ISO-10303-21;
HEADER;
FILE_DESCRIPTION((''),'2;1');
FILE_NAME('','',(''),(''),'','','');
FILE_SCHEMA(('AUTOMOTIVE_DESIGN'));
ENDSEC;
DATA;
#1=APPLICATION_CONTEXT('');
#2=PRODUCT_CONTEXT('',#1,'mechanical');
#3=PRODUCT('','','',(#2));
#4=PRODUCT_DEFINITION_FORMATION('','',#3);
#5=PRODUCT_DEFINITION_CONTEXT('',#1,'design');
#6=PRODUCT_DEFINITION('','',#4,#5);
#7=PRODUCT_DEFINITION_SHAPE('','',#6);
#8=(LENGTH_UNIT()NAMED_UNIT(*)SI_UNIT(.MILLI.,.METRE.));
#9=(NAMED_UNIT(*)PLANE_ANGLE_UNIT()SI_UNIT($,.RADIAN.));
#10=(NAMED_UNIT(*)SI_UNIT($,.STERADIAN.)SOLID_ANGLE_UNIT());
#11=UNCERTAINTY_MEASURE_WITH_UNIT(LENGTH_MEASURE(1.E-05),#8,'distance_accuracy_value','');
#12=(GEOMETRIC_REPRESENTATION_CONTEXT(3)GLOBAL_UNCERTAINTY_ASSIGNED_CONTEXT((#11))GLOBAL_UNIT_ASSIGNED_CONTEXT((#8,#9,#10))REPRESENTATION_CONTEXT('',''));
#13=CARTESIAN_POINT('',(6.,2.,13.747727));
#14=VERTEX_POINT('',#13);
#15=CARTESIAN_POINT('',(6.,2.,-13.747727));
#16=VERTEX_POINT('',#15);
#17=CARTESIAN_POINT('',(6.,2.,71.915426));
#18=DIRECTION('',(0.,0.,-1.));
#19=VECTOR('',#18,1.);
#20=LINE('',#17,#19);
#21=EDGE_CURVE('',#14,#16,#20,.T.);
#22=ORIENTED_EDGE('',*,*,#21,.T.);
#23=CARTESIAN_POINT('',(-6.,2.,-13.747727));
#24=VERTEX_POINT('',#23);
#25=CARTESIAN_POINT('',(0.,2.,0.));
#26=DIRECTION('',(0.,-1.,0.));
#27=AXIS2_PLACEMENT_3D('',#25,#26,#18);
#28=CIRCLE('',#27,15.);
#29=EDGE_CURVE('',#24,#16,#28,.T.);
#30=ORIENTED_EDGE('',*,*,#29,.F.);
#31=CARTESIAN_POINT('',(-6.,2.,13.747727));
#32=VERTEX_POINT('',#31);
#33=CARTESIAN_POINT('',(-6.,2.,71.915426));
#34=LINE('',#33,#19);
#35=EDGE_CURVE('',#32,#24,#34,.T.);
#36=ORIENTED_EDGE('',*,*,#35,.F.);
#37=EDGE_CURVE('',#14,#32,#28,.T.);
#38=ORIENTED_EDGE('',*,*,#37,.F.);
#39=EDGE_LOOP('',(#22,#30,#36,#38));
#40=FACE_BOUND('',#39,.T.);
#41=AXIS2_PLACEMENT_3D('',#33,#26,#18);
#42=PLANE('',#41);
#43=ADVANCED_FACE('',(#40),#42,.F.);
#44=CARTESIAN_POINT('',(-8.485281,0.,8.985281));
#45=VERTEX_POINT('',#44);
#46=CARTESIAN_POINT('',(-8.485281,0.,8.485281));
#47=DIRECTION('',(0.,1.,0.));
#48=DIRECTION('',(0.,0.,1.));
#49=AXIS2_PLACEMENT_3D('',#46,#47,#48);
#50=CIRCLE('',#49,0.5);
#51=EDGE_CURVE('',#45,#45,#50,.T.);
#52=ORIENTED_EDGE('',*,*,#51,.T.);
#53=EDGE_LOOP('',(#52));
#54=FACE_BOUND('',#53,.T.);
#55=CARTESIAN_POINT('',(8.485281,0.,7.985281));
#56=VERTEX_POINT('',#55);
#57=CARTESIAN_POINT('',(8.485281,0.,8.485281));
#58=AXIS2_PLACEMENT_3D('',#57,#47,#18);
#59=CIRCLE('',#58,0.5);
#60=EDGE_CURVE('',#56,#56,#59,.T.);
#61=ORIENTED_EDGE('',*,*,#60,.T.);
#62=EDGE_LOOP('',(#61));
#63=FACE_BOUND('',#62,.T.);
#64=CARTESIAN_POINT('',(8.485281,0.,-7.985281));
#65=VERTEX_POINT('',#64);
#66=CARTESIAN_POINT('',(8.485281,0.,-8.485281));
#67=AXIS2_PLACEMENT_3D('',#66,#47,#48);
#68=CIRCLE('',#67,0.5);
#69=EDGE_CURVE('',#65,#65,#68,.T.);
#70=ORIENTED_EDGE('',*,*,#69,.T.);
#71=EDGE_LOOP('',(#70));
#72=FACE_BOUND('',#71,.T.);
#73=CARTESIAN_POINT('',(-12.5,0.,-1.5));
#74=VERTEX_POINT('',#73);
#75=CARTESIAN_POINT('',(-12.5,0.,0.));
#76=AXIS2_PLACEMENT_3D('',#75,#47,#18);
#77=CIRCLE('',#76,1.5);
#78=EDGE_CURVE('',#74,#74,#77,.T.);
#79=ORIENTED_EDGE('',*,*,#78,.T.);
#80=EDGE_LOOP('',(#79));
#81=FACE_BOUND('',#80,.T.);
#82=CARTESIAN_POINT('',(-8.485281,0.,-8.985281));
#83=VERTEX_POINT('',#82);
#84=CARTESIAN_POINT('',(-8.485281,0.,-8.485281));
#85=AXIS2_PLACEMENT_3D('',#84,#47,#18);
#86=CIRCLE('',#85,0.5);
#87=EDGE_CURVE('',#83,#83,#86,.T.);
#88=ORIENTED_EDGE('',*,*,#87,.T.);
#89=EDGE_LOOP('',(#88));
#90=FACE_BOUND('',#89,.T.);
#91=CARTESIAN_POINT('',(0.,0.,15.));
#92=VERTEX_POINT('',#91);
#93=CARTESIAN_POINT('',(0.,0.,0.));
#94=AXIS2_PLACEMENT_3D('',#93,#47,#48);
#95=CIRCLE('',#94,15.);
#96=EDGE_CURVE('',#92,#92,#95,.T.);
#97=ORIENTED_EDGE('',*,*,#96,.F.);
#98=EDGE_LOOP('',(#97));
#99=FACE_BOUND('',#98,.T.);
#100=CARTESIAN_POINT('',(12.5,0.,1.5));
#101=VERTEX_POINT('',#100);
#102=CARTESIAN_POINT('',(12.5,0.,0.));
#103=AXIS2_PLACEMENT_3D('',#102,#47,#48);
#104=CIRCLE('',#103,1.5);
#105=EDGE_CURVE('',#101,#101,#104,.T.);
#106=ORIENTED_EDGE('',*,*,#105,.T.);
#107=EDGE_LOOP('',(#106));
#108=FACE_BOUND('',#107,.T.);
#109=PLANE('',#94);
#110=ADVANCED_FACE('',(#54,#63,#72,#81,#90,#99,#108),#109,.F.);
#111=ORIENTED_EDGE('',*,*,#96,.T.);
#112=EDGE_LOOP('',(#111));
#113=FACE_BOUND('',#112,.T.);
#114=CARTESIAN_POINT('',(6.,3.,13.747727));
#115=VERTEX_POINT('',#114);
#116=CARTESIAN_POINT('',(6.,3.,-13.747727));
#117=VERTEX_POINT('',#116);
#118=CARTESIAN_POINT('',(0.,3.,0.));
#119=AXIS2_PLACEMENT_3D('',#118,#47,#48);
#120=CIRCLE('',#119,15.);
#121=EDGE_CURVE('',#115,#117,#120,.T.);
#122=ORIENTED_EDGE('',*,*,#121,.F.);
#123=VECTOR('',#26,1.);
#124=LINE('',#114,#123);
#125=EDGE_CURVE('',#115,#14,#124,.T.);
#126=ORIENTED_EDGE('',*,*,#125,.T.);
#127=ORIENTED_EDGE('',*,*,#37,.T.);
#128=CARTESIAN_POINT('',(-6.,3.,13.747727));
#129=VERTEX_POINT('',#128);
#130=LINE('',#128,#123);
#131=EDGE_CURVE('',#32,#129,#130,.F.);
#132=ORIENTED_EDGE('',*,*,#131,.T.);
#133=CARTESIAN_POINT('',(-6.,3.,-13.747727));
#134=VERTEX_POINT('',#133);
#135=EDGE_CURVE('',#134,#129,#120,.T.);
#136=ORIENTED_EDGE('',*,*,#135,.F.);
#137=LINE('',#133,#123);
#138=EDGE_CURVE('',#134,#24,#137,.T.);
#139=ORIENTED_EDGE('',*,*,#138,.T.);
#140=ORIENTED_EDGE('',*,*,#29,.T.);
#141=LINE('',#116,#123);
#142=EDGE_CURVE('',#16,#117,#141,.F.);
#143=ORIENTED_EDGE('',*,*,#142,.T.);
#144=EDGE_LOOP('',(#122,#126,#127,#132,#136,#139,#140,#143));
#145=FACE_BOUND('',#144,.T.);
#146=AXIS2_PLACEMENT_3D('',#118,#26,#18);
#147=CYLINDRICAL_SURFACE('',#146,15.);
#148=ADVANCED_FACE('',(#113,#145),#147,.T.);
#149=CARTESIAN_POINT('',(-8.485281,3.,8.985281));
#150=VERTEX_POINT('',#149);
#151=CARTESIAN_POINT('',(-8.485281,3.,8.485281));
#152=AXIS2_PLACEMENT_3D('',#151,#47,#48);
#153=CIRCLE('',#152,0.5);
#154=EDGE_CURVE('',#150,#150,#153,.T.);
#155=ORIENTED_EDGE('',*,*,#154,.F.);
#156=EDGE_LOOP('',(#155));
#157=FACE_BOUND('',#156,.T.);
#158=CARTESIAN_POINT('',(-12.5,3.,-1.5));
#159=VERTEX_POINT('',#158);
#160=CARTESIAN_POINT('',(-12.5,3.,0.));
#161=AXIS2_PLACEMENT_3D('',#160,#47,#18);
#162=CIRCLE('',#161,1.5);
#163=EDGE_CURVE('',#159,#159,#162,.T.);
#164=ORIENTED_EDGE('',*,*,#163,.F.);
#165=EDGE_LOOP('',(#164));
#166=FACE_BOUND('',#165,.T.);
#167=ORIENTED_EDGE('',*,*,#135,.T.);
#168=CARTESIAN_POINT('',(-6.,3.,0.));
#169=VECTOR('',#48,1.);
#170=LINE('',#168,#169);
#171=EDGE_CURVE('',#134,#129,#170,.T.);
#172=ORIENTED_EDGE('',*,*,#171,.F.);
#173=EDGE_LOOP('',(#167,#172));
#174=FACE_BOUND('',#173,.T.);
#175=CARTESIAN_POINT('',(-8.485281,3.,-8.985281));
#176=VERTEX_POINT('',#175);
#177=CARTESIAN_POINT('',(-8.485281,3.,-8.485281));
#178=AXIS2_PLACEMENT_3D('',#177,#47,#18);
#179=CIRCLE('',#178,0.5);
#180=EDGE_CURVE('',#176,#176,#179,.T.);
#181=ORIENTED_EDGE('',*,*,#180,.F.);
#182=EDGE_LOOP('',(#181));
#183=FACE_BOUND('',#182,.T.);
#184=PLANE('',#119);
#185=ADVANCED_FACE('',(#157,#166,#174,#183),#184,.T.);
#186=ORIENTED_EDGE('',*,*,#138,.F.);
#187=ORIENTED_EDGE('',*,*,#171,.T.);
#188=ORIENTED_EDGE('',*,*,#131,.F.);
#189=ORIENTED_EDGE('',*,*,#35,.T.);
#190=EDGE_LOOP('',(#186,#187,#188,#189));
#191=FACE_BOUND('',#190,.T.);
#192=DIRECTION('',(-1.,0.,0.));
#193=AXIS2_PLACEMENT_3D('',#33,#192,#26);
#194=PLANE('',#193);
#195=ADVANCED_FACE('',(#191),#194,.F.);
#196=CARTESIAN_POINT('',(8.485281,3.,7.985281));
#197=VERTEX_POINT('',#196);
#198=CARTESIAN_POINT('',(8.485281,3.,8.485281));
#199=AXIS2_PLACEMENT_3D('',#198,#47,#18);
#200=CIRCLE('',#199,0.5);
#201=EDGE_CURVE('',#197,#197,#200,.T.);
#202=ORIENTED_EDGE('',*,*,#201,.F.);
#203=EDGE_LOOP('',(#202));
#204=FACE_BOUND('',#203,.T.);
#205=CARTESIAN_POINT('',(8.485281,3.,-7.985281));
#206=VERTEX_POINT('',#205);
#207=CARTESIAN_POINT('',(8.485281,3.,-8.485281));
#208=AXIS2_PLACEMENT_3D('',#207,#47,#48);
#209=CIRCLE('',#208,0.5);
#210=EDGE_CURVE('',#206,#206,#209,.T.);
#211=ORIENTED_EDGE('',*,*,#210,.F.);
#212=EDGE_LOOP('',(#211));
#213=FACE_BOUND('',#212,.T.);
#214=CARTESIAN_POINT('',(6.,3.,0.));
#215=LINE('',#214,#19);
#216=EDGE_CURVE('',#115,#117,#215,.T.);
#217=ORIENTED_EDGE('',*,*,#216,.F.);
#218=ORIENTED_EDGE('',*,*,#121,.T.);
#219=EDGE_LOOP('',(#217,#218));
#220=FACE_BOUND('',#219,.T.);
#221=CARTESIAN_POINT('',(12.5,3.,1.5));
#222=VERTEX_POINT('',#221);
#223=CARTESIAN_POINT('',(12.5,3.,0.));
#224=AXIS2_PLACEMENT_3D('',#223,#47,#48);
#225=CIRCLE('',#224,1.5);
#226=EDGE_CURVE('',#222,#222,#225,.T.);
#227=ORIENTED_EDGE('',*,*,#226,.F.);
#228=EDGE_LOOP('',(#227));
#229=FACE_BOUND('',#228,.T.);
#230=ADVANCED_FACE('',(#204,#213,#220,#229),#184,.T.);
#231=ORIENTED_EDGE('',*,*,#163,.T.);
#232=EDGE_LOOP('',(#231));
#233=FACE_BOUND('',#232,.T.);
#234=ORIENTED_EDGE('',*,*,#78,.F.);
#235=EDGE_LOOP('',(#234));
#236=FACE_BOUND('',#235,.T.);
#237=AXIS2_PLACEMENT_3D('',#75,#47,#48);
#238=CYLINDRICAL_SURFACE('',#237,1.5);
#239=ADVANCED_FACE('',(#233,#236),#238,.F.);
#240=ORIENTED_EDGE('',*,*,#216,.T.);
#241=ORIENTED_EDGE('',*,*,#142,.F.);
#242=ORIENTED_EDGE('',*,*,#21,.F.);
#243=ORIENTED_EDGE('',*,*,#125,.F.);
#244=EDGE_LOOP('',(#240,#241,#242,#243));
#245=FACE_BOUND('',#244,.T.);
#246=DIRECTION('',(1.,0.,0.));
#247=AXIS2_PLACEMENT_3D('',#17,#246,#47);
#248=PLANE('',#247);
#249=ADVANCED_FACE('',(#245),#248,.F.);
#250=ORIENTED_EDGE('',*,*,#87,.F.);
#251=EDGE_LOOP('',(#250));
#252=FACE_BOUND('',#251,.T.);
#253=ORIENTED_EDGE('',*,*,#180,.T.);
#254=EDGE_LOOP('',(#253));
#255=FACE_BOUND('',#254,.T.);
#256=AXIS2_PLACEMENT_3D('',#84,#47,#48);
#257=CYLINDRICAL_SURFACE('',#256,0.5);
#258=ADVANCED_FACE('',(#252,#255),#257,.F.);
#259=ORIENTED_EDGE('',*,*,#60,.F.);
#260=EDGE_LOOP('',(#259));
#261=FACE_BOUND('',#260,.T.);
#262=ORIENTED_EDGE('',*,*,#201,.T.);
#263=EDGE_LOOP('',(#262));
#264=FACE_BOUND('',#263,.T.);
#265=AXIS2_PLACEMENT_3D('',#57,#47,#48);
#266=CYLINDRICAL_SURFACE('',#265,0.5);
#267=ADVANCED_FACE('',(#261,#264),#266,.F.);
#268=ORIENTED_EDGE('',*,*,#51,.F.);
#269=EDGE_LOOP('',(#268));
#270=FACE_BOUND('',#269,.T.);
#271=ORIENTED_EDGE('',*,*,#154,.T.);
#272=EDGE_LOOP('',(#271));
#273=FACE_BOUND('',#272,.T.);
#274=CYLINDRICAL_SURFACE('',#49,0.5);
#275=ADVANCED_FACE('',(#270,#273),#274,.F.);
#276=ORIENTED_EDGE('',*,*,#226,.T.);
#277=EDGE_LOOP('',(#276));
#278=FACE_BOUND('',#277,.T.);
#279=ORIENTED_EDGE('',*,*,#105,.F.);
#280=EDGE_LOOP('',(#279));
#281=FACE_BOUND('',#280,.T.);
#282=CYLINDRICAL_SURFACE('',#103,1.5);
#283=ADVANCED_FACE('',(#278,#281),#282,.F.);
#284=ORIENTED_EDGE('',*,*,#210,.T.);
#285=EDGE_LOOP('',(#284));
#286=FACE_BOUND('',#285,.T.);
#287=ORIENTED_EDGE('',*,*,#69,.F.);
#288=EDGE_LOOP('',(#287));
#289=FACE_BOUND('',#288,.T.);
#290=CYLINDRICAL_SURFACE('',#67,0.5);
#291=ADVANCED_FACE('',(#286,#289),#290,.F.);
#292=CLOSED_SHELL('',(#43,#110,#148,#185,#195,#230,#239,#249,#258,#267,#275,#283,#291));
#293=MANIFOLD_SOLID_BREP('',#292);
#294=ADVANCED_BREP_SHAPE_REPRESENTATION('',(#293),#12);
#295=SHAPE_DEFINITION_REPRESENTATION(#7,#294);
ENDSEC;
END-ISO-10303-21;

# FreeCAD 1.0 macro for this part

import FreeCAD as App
import Part
import Sketcher
Q = App.Units.Quantity

doc = App.newDocument("Part")
params = doc.addObject("Spreadsheet::Sheet", "Params")
for row, (alias, value) in enumerate([
    ("sketch1_diameter", "30 mm"),
    ("pad1_length", "3 mm"),
    ("sketch2_width", "12 mm"),
    ("sketch3_diameter", "3 mm"),
    ("pocket2_length", "3 mm"),
    ("sketch4_diameter", "1 mm"),
    ("pocket3_length", "3 mm"),
], start=1):
    params.set(f"A{row}", alias)
    params.set(f"B{row}", "=" + value)
    params.setAlias(f"B{row}", alias)

body = doc.addObject("PartDesign::Body", "Body")

sketch1 = doc.addObject("Sketcher::SketchObject", "Sketch")
body.addObject(sketch1)
sketch1.AttachmentSupport = (doc.XZ_Plane, [""])
sketch1.MapMode = "FlatFace"
sketch1.addGeometry(Part.Circle(App.Vector(0, 0, 0), App.Vector(0, 0, 1), 15), False)
sketch1.addConstraint([
    Sketcher.Constraint("Coincident", 0, 3, -1, 1),
    Sketcher.Constraint("Diameter", 0, Q("30 mm")),
])
sketch1.setExpression("Constraints[1]", "Params.sketch1_diameter")
pad1 = doc.addObject("PartDesign::Pad", "Pad")
body.addObject(pad1)
pad1.Profile = sketch1
pad1.setExpression("Length", "Params.pad1_length")
pad1.Reversed = True

sketch2 = doc.addObject("Sketcher::SketchObject", "Sketch001")
body.addObject(sketch2)
sketch2.AttachmentSupport = (doc.XY_Plane, [""])
sketch2.MapMode = "FlatFace"
sketch2.addGeometry([
    Part.LineSegment(App.Vector(-6, 2, 0), App.Vector(6, 2, 0)),
    Part.LineSegment(App.Vector(6, 2, 0), App.Vector(6, 160.279221, 0)),
    Part.LineSegment(App.Vector(6, 160.279221, 0), App.Vector(-6, 160.279221, 0)),
    Part.LineSegment(App.Vector(-6, 160.279221, 0), App.Vector(-6, 2, 0)),
], False)
sketch2.addConstraint([
    Sketcher.Constraint("Coincident", 0, 2, 1, 1),
    Sketcher.Constraint("Coincident", 1, 2, 2, 1),
    Sketcher.Constraint("Coincident", 2, 2, 3, 1),
    Sketcher.Constraint("Coincident", 3, 2, 0, 1),
    Sketcher.Constraint("Horizontal", 0),
    Sketcher.Constraint("Vertical", 1),
    Sketcher.Constraint("Horizontal", 2),
    Sketcher.Constraint("Vertical", 3),
    Sketcher.Constraint("DistanceX", 0, 1, 0, 2, Q("12 mm")),
    Sketcher.Constraint("DistanceX", -1, 1, 0, 2, Q("6 mm")),
    Sketcher.Constraint("DistanceY", -1, 1, 0, 2, Q("2 mm")),
    Sketcher.Constraint("DistanceY", 1, 1, 1, 2, Q("158.279221 mm")),
])
sketch2.setExpression("Constraints[8]", "Params.sketch2_width")
pocket1 = doc.addObject("PartDesign::Pocket", "Pocket")
body.addObject(pocket1)
pocket1.Profile = sketch2
pocket1.Type = "ThroughAll"
pocket1.Midplane = True

sketch3 = doc.addObject("Sketcher::SketchObject", "Sketch002")
body.addObject(sketch3)
sketch3.AttachmentSupport = (doc.XZ_Plane, [""])
sketch3.MapMode = "FlatFace"
sketch3.AttachmentOffset = App.Placement(App.Vector(0, 0, -3), App.Rotation())
sketch3.addGeometry([
    Part.Circle(App.Vector(12.5, 0, 0), App.Vector(0, 0, 1), 1.5),
    Part.Circle(App.Vector(-12.5, 0, 0), App.Vector(0, 0, 1), 1.5),
], False)
sketch3.addConstraint([
    Sketcher.Constraint("Equal", 0, 1),
    Sketcher.Constraint("Symmetric", 0, 3, 1, 3, -1, 1),
    Sketcher.Constraint("PointOnObject", 0, 3, -1),
    Sketcher.Constraint("Diameter", 0, Q("3 mm")),
    Sketcher.Constraint("DistanceX", 1, 3, 0, 3, Q("25 mm")),
])
sketch3.setExpression("Constraints[3]", "Params.sketch3_diameter")
pocket2 = doc.addObject("PartDesign::Pocket", "Pocket001")
body.addObject(pocket2)
pocket2.Profile = sketch3
pocket2.setExpression("Length", "Params.pocket2_length")
pocket2.Reversed = True

sketch4 = doc.addObject("Sketcher::SketchObject", "Sketch003")
body.addObject(sketch4)
sketch4.AttachmentSupport = (doc.XZ_Plane, [""])
sketch4.MapMode = "FlatFace"
sketch4.AttachmentOffset = App.Placement(App.Vector(0, 0, -3), App.Rotation())
sketch4.addGeometry([
    Part.Circle(App.Vector(8.485281, -8.485281, 0), App.Vector(0, 0, 1), 0.5),
    Part.Circle(App.Vector(-8.485281, -8.485281, 0), App.Vector(0, 0, 1), 0.5),
    Part.Circle(App.Vector(8.485281, 8.485281, 0), App.Vector(0, 0, 1), 0.5),
    Part.Circle(App.Vector(-8.485281, 8.485281, 0), App.Vector(0, 0, 1), 0.5),
], False)
sketch4.addConstraint([
    Sketcher.Constraint("Equal", 0, 1),
    Sketcher.Constraint("Equal", 1, 2),
    Sketcher.Constraint("Equal", 2, 3),
    Sketcher.Constraint("Symmetric", 1, 3, 2, 3, -1, 1),
    Sketcher.Constraint("Symmetric", 0, 3, 3, 3, -1, 1),
    Sketcher.Constraint("Symmetric", 0, 3, 1, 3, -2),
    Sketcher.Constraint("Diameter", 0, Q("1 mm")),
    Sketcher.Constraint("DistanceX", -1, 1, 0, 3, Q("8.485281 mm")),
    Sketcher.Constraint("DistanceY", 0, 3, -1, 1, Q("8.485281 mm")),
])
sketch4.setExpression("Constraints[6]", "Params.sketch4_diameter")
pocket3 = doc.addObject("PartDesign::Pocket", "Pocket002")
body.addObject(pocket3)
pocket3.Profile = sketch4
pocket3.setExpression("Length", "Params.pocket3_length")
pocket3.Reversed = True

doc.recompute()
